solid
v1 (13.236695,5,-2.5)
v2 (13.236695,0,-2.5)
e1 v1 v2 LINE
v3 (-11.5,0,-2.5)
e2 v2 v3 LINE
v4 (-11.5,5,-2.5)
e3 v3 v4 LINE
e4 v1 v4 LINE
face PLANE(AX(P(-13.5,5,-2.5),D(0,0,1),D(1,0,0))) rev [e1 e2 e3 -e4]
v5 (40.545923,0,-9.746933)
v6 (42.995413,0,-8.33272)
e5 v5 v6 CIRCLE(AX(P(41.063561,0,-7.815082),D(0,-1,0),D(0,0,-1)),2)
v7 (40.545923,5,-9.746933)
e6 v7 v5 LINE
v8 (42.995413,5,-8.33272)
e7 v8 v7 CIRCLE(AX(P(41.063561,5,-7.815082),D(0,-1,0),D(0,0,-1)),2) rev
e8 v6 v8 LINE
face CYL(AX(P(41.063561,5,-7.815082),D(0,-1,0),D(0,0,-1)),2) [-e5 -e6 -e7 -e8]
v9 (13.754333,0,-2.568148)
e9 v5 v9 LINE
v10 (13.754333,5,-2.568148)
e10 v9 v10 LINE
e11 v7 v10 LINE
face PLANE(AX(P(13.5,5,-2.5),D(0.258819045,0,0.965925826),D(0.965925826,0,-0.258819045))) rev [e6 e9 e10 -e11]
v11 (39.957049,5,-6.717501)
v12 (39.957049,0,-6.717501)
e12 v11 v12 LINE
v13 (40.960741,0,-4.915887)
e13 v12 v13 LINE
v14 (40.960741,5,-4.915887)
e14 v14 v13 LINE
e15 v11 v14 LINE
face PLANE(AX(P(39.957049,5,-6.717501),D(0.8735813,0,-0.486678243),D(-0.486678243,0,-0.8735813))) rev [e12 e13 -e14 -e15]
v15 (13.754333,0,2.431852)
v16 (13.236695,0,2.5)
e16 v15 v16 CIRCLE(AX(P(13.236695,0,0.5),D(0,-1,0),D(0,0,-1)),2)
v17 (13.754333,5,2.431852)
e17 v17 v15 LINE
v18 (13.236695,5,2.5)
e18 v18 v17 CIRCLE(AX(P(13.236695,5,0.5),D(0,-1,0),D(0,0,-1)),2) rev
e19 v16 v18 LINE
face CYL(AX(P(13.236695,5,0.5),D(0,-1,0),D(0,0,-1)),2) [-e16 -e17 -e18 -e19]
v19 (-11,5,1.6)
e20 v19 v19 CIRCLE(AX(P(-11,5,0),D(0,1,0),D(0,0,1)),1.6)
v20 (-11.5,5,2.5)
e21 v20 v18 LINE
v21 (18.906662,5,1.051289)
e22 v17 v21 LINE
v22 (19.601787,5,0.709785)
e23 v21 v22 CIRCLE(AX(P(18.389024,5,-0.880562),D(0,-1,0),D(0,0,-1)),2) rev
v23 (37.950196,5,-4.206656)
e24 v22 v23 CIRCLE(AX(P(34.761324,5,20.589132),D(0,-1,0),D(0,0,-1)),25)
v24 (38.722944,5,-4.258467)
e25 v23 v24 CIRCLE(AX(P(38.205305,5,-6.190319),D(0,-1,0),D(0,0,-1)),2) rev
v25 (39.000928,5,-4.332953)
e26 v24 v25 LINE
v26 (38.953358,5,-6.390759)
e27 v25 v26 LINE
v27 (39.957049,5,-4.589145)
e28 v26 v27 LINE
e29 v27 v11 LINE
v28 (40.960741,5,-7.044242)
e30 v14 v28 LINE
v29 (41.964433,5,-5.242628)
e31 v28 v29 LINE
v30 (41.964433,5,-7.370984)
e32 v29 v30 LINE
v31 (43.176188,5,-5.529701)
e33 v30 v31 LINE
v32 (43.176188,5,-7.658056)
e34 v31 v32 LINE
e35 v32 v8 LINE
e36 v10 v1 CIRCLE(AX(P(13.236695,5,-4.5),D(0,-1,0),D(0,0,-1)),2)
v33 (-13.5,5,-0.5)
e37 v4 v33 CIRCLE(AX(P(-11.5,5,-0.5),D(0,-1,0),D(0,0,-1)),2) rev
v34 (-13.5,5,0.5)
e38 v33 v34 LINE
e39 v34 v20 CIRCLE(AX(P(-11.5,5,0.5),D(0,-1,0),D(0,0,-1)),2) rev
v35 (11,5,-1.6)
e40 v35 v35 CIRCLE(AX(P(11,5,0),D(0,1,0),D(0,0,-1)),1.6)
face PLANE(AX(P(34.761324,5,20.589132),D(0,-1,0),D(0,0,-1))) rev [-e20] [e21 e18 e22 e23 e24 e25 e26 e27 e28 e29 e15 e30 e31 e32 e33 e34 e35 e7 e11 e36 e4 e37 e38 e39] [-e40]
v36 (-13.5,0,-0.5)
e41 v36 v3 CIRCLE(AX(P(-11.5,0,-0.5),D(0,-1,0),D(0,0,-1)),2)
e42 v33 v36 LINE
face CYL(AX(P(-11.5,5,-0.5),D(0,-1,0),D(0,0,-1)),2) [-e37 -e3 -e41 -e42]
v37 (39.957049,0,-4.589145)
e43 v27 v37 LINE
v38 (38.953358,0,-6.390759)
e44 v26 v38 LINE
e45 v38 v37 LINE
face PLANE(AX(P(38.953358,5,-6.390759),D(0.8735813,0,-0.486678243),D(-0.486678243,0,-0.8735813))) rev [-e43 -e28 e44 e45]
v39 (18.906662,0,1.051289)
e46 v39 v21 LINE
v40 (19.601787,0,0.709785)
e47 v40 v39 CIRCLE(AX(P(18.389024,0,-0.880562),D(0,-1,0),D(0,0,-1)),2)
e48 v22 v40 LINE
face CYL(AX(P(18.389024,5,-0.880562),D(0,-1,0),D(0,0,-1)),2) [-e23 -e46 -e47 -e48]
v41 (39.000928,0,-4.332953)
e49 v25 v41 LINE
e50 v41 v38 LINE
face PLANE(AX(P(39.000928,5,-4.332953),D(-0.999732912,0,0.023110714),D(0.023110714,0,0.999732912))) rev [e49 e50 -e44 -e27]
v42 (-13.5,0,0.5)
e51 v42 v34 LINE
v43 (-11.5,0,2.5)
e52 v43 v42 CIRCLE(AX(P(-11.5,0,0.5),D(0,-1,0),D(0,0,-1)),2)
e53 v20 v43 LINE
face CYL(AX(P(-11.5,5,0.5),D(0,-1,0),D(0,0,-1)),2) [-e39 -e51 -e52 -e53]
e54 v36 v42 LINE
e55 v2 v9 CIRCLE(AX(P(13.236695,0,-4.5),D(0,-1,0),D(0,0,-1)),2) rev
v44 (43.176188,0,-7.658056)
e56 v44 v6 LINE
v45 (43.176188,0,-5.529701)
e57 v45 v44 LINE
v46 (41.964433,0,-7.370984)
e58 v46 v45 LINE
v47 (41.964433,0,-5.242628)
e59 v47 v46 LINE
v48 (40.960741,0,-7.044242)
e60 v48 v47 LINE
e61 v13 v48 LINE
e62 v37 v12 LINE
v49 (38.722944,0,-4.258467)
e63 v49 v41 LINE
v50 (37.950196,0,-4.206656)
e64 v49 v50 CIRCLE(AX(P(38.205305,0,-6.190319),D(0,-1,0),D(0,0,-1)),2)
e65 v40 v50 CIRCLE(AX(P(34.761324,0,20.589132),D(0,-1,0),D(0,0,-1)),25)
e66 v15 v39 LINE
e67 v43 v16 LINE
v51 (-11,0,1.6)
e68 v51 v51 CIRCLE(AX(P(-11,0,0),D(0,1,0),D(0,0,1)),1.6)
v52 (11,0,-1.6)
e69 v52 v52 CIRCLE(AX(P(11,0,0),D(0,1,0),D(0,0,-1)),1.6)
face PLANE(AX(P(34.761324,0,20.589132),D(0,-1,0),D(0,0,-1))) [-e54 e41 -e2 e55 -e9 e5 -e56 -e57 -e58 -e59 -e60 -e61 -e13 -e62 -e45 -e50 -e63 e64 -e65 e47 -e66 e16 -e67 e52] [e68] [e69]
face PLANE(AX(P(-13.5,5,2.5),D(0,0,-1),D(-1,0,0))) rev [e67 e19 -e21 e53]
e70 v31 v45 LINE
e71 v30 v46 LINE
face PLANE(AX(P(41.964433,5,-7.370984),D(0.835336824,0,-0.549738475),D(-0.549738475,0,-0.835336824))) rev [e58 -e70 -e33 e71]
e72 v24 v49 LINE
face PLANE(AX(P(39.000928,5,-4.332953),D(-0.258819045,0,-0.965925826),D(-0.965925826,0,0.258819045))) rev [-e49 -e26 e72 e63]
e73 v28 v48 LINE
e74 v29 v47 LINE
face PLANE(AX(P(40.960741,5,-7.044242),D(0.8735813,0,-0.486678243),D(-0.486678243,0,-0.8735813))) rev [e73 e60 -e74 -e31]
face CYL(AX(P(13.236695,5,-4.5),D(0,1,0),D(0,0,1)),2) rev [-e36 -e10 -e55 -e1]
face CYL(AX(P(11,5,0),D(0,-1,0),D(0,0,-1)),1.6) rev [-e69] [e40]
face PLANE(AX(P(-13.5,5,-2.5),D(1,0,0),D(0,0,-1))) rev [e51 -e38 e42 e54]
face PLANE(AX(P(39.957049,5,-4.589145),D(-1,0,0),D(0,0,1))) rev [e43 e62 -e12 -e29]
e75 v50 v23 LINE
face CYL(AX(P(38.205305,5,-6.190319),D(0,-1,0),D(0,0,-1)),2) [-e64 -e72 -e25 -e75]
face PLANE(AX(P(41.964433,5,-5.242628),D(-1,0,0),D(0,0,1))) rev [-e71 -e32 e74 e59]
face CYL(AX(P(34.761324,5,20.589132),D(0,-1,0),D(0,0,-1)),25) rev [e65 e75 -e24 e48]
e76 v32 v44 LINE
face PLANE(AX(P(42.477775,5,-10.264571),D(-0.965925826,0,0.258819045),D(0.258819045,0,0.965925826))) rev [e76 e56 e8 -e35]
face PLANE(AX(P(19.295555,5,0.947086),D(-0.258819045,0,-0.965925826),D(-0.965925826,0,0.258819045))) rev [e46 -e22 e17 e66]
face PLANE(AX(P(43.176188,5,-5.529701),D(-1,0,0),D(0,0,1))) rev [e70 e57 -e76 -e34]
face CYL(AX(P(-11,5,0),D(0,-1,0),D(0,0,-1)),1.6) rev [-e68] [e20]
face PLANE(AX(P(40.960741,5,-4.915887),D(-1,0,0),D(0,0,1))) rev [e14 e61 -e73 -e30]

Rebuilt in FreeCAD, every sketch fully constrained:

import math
import FreeCAD as App
import Part
import Sketcher


def edges_at(feature, points):
    """Names of the edges that pass closest to the given points."""
    edges = feature.Shape.Edges
    near = lambda p: min(range(len(edges)), key=lambda i: edges[i].distToShape(Part.Vertex(*p))[0])
    return sorted({f"Edge{near(p) + 1}" for p in points})

doc = App.newDocument("Part")
params = doc.addObject("Spreadsheet::Sheet", "Params")
for row, (alias, value) in enumerate([
    ("sketch1_radius", "25 mm"),
    ("sketch1_diameter", "3.2 mm"),
    ("sketch1_diameter2", "3.2 mm"),
    ("sketch1_width", "27 mm"),
    ("sketch1_width2", "27 mm"),
    ("pad1_length", "5 mm"),
    ("fillet_radius", "2 mm"),
], start=1):
    params.set(f"A{row}", alias)
    params.set(f"B{row}", "=" + value)
    params.setAlias(f"B{row}", alias)

body = doc.addObject("PartDesign::Body", "Body")

# Sketch on XZ plane
sketch1 = doc.addObject("Sketcher::SketchObject", "Sketch")
body.addObject(sketch1)
sketch1.AttachmentSupport = (doc.XZ_Plane, [""])
sketch1.MapMode = "FlatFace"
sketch1.addGeometry(Part.LineSegment(App.Vector(13.5, -2.5, 0), App.Vector(-13.5, -2.5, 0)), False)
sketch1.addGeometry(Part.LineSegment(App.Vector(-13.5, -2.5, 0), App.Vector(-13.5, 2.5, 0)), False)
sketch1.addGeometry(Part.LineSegment(App.Vector(-13.5, 2.5, 0), App.Vector(13.5, 2.5, 0)), False)
sketch1.addGeometry(Part.LineSegment(App.Vector(13.5, 2.5, 0), App.Vector(19.295555, 0.947086, 0)), False)
sketch1.addGeometry(Part.ArcOfCircle(Part.Circle(App.Vector(34.761324, 20.589132, 0), App.Vector(0, 0, 1), 25), math.radians(-128.216215), math.radians(-81.783785)), False)
sketch1.addGeometry(Part.LineSegment(App.Vector(38.33405, -4.154264, 0), App.Vector(39.000928, -4.332953, 0)), False)
sketch1.addGeometry(Part.LineSegment(App.Vector(39.000928, -4.332953, 0), App.Vector(38.953358, -6.390759, 0)), False)
sketch1.addGeometry(Part.LineSegment(App.Vector(38.953358, -6.390759, 0), App.Vector(39.957049, -4.589145, 0)), False)
sketch1.addGeometry(Part.LineSegment(App.Vector(39.957049, -4.589145, 0), App.Vector(39.957049, -6.717501, 0)), False)
sketch1.addGeometry(Part.LineSegment(App.Vector(39.957049, -6.717501, 0), App.Vector(40.960741, -4.915887, 0)), False)
sketch1.addGeometry(Part.LineSegment(App.Vector(40.960741, -4.915887, 0), App.Vector(40.960741, -7.044242, 0)), False)
sketch1.addGeometry(Part.LineSegment(App.Vector(40.960741, -7.044242, 0), App.Vector(41.964433, -5.242628, 0)), False)
sketch1.addGeometry(Part.LineSegment(App.Vector(41.964433, -5.242628, 0), App.Vector(41.964433, -7.370984, 0)), False)
sketch1.addGeometry(Part.LineSegment(App.Vector(41.964433, -7.370984, 0), App.Vector(43.176188, -5.529701, 0)), False)
sketch1.addGeometry(Part.LineSegment(App.Vector(43.176188, -5.529701, 0), App.Vector(43.176188, -7.658056, 0)), False)
sketch1.addGeometry(Part.LineSegment(App.Vector(43.176188, -7.658056, 0), App.Vector(42.477775, -10.264571, 0)), False)
sketch1.addGeometry(Part.LineSegment(App.Vector(42.477775, -10.264571, 0), App.Vector(13.5, -2.5, 0)), False)
sketch1.addGeometry(Part.Circle(App.Vector(11, 0, 0), App.Vector(0, 0, 1), 1.6), False)
sketch1.addGeometry(Part.Circle(App.Vector(-11, 0, 0), App.Vector(0, 0, 1), 1.6), False)
sketch1.addConstraint(Sketcher.Constraint("Coincident", 0, 2, 1, 1))
sketch1.addConstraint(Sketcher.Constraint("Coincident", 1, 2, 2, 1))
sketch1.addConstraint(Sketcher.Constraint("Coincident", 2, 2, 3, 1))
sketch1.addConstraint(Sketcher.Constraint("Coincident", 3, 2, 4, 1))
sketch1.addConstraint(Sketcher.Constraint("Coincident", 4, 2, 5, 1))
sketch1.addConstraint(Sketcher.Constraint("Coincident", 5, 2, 6, 1))
sketch1.addConstraint(Sketcher.Constraint("Coincident", 6, 2, 7, 1))
sketch1.addConstraint(Sketcher.Constraint("Coincident", 7, 2, 8, 1))
sketch1.addConstraint(Sketcher.Constraint("Coincident", 8, 2, 9, 1))
sketch1.addConstraint(Sketcher.Constraint("Coincident", 9, 2, 10, 1))
sketch1.addConstraint(Sketcher.Constraint("Coincident", 10, 2, 11, 1))
sketch1.addConstraint(Sketcher.Constraint("Coincident", 11, 2, 12, 1))
sketch1.addConstraint(Sketcher.Constraint("Coincident", 12, 2, 13, 1))
sketch1.addConstraint(Sketcher.Constraint("Coincident", 13, 2, 14, 1))
sketch1.addConstraint(Sketcher.Constraint("Coincident", 14, 2, 15, 1))
sketch1.addConstraint(Sketcher.Constraint("Coincident", 15, 2, 16, 1))
sketch1.addConstraint(Sketcher.Constraint("Coincident", 16, 2, 0, 1))
sketch1.addConstraint(Sketcher.Constraint("Horizontal", 0))
sketch1.addConstraint(Sketcher.Constraint("Vertical", 1))
sketch1.addConstraint(Sketcher.Constraint("Horizontal", 2))
sketch1.addConstraint(Sketcher.Constraint("Vertical", 8))
sketch1.addConstraint(Sketcher.Constraint("Vertical", 10))
sketch1.addConstraint(Sketcher.Constraint("Vertical", 12))
sketch1.addConstraint(Sketcher.Constraint("Vertical", 14))
sketch1.addConstraint(Sketcher.Constraint("PointOnObject", 17, 3, -1))
sketch1.addConstraint(Sketcher.Constraint("PointOnObject", 18, 3, -1))
sketch1.addConstraint(Sketcher.Constraint("Radius", 4, 25.0))
sketch1.addConstraint(Sketcher.Constraint("Diameter", 17, 3.2))
sketch1.addConstraint(Sketcher.Constraint("Diameter", 18, 3.2))
sketch1.addConstraint(Sketcher.Constraint("DistanceX", 0, 2, 0, 1, 27.0))
sketch1.addConstraint(Sketcher.Constraint("DistanceX", 2, 1, 2, 2, 27.0))
sketch1.addConstraint(Sketcher.Constraint("DistanceY", 1, 1, 1, 2, 5.0))
sketch1.addConstraint(Sketcher.Constraint("Distance", 3, 6.0))
sketch1.addConstraint(Sketcher.Constraint("Distance", 16, 30.0))
sketch1.addConstraint(Sketcher.Constraint("DistanceX", -1, 1, 17, 3, 11.0))
sketch1.addConstraint(Sketcher.Constraint("DistanceX", 18, 3, -1, 1, 11.0))
sketch1.addConstraint(Sketcher.Constraint("DistanceX", 0, 2, -1, 1, 13.5))
sketch1.addConstraint(Sketcher.Constraint("DistanceY", 0, 2, -1, 1, 2.5))
sketch1.addConstraint(Sketcher.Constraint("DistanceX", 4, 2, 7, 2, 1.622999))
sketch1.addConstraint(Sketcher.Constraint("DistanceY", 8, 2, -1, 1, 6.717501))
sketch1.addConstraint(Sketcher.Constraint("DistanceY", 13, 2, -1, 1, 5.529701))
sketch1.addConstraint(Sketcher.Constraint("Distance", 7, 2.062331))
sketch1.addConstraint(Sketcher.Constraint("Distance", 9, 2.062331))
sketch1.addConstraint(Sketcher.Constraint("Distance", 11, 2.062331))
sketch1.addConstraint(Sketcher.Constraint("Distance", 13, 2.20424))
sketch1.addConstraint(Sketcher.Constraint("DistanceY", 8, 2, 8, 1, 2.128356))
sketch1.addConstraint(Sketcher.Constraint("DistanceY", 10, 2, 10, 1, 2.128356))
sketch1.addConstraint(Sketcher.Constraint("DistanceY", 12, 2, 12, 1, 2.128356))
sketch1.addConstraint(Sketcher.Constraint("DistanceY", 14, 2, 14, 1, 2.128356))
sketch1.addConstraint(Sketcher.Constraint("DistanceY", -1, 1, 4, 3, 20.589132))
sketch1.addConstraint(Sketcher.Constraint("DistanceX", -1, 1, 4, 2, 38.33405))
sketch1.addConstraint(Sketcher.Constraint("DistanceY", 6, 2, -1, 1, 6.390759))
sketch1.addConstraint(Sketcher.Constraint("DistanceX", -1, 1, 9, 2, 40.960741))
sketch1.addConstraint(Sketcher.Constraint("DistanceY", 11, 2, -1, 1, 5.242628))
sketch1.addConstraint(Sketcher.Constraint("DistanceY", 15, 2, -1, 1, 10.264571))
sketch1.addConstraint(Sketcher.Constraint("DistanceX", 3, 2, 4, 3, 15.465769))
sketch1.addConstraint(Sketcher.Constraint("DistanceY", 5, 2, 4, 2, 0.178689))
sketch1.addConstraint(Sketcher.Constraint("DistanceX", 6, 2, 5, 2, 0.04757))
sketch1.setExpression("Constraints[26]", "Params.sketch1_radius")
sketch1.setExpression("Constraints[27]", "Params.sketch1_diameter")
sketch1.setExpression("Constraints[28]", "Params.sketch1_diameter2")
sketch1.setExpression("Constraints[29]", "Params.sketch1_width")
sketch1.setExpression("Constraints[30]", "Params.sketch1_width2")
pad1 = doc.addObject("PartDesign::Pad", "Pad")
body.addObject(pad1)
pad1.Profile = sketch1
pad1.setExpression("Length", "Params.pad1_length")
pad1.Reversed = True
doc.recompute()

fillet = doc.addObject("PartDesign::Fillet", "Fillet")
body.addObject(fillet)
fillet.Base = (pad1, edges_at(pad1, [
    (13.5, 2.5, 2.5),
    (-13.5, 2.5, 2.5),
    (-13.5, 2.5, -2.5),
    (13.5, 2.5, -2.5),
    (42.478, 2.5, -10.265),
    (38.334, 2.5, -4.154),
    (19.296, 2.5, 0.947),
]))
fillet.setExpression("Radius", "Params.fillet_radius")

doc.recompute()
